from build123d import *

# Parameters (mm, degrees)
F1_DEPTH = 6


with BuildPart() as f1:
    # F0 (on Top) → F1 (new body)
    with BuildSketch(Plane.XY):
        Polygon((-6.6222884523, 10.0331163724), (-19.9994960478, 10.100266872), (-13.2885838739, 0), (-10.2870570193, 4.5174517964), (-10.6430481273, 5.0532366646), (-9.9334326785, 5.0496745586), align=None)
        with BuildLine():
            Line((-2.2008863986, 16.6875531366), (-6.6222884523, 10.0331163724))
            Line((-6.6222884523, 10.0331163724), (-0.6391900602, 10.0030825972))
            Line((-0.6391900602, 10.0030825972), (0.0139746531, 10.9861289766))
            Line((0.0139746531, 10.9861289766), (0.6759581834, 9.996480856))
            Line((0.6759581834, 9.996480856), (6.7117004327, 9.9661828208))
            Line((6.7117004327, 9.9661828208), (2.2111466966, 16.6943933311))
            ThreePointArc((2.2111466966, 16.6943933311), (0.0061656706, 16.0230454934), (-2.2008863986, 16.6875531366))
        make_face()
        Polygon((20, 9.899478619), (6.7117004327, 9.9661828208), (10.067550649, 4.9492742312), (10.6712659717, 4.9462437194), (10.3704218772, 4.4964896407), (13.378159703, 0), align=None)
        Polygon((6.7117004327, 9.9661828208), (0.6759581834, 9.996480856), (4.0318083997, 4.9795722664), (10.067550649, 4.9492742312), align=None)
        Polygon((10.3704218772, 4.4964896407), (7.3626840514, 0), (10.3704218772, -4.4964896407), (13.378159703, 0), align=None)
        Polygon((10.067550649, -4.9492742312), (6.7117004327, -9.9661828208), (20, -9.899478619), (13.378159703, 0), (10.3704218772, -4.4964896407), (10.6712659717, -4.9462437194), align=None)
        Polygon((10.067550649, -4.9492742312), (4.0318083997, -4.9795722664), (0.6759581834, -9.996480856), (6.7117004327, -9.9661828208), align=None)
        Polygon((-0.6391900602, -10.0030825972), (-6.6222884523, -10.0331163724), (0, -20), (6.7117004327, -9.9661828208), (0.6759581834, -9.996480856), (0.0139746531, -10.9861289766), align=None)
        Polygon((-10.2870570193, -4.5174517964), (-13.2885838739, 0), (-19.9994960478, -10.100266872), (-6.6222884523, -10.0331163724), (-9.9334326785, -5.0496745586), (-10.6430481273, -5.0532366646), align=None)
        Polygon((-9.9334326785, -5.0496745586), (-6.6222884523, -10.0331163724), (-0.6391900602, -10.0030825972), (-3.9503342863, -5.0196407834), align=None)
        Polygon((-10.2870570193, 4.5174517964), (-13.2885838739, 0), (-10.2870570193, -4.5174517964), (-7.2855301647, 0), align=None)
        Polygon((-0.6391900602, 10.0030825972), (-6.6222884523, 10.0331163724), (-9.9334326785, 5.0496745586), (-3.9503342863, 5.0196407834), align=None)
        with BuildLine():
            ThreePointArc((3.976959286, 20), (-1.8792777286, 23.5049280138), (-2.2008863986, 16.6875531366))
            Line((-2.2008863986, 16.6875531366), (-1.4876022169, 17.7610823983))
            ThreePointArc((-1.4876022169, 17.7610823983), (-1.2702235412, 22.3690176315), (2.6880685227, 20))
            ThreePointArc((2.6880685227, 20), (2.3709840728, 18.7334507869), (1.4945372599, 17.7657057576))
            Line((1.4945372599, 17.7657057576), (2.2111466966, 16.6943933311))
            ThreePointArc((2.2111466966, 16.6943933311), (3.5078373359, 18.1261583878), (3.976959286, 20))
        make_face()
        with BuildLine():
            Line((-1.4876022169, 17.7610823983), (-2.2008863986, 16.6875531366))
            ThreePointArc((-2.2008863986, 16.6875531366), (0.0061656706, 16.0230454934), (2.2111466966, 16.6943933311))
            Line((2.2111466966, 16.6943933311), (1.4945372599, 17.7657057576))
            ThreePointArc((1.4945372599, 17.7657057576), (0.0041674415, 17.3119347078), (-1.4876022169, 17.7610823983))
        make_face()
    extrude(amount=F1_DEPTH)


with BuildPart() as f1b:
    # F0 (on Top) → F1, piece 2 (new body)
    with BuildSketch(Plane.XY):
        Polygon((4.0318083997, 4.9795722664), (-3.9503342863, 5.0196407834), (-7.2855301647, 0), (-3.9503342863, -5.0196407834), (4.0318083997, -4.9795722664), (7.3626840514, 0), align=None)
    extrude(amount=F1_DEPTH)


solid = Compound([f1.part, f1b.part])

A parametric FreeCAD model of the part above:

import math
import FreeCAD as App
import Part
import Sketcher

V = App.Vector


def add_polygon(sketch, points):
    """Adds a closed chain of lines whose ends are joined by coincident constraints."""
    first, n = sketch.GeometryCount, len(points)
    for a, b in zip(points, points[1:] + points[:1]):
        sketch.addGeometry(Part.LineSegment(App.Vector(*a, 0), App.Vector(*b, 0)), False)
    for i in range(n):
        sketch.addConstraint(Sketcher.Constraint("Coincident", first + i, 2, first + (i + 1) % n, 1))

doc = App.newDocument("Part")
body = doc.addObject("PartDesign::Body", "Body")

# Sketch on XY plane
sketch1 = body.newObject("Sketcher::SketchObject", "Sketch")
sketch1.AttachmentSupport = (doc.getObject("XY_Plane"), [""])
sketch1.MapMode = "FlatFace"
sketch1.addGeometry(Part.LineSegment(V(-2.200886, 16.687553, 0), V(-6.622288, 10.033116, 0)), False)  # 0
sketch1.addGeometry(Part.LineSegment(V(-6.622288, 10.033116, 0), V(-19.999496, 10.100267, 0)), False)  # 1
sketch1.addGeometry(Part.LineSegment(V(-19.999496, 10.100267, 0), V(-13.288584, 0, 0)), False)  # 2
sketch1.addGeometry(Part.LineSegment(V(-13.288584, 0, 0), V(-19.999496, -10.100267, 0)), False)  # 3
sketch1.addGeometry(Part.LineSegment(V(-19.999496, -10.100267, 0), V(-6.622288, -10.033116, 0)), False)  # 4
sketch1.addGeometry(Part.LineSegment(V(-6.622288, -10.033116, 0), V(0, -20, 0)), False)  # 5
sketch1.addGeometry(Part.LineSegment(V(0, -20, 0), V(6.7117, -9.966183, 0)), False)  # 6
sketch1.addGeometry(Part.LineSegment(V(6.7117, -9.966183, 0), V(20, -9.899479, 0)), False)  # 7
sketch1.addGeometry(Part.LineSegment(V(20, -9.899479, 0), V(13.37816, 0, 0)), False)  # 8
sketch1.addGeometry(Part.LineSegment(V(13.37816, 0, 0), V(20, 9.899479, 0)), False)  # 9
sketch1.addGeometry(Part.LineSegment(V(20, 9.899479, 0), V(6.7117, 9.966183, 0)), False)  # 10
sketch1.addGeometry(Part.LineSegment(V(6.7117, 9.966183, 0), V(2.211147, 16.694393, 0)), False)  # 11
sketch1.addGeometry(Part.ArcOfCircle(Part.Circle(V(0, 20, 0), V(0, 0, 1), 3.976959), math.radians(-56.22112), math.radians(0)), False)  # 12
sketch1.addGeometry(Part.ArcOfCircle(Part.Circle(V(0, 20, 0), V(0, 0, 1), 3.976959), math.radians(0), math.radians(236.398776)), False)  # 13
add_polygon(sketch1, [(-10.643048, 5.053237), (-9.933433, 5.049675), (-3.950334, 5.019641), (-0.63919, 10.003083), (0.013975, 10.986129), (0.675958, 9.996481), (4.031808, 4.979572), (10.067551, 4.949274), (10.671266, 4.946244), (10.370422, 4.49649), (7.362684, 0), (10.370422, -4.49649), (10.671266, -4.946244), (10.067551, -4.949274), (4.031808, -4.979572), (0.675958, -9.996481), (0.013975, -10.986129), (-0.63919, -10.003083), (-3.950334, -5.019641), (-9.933433, -5.049675), (-10.643048, -5.053237), (-10.287057, -4.517452), (-7.28553, 0), (-10.287057, 4.517452)])  # lines 14-37
sketch1.addGeometry(Part.ArcOfCircle(Part.Circle(V(0, 20, 0), V(0, 0, 1), 2.688069), math.radians(-123.601224), math.radians(-56.22112)), False)  # 38
sketch1.addGeometry(Part.ArcOfCircle(Part.Circle(V(0, 20, 0), V(0, 0, 1), 2.688069), math.radians(0), math.radians(236.398776)), False)  # 39
sketch1.addGeometry(Part.ArcOfCircle(Part.Circle(V(0, 20, 0), V(0, 0, 1), 2.688069), math.radians(-56.22112), math.radians(0)), False)  # 40
sketch1.addConstraint([
    Sketcher.Constraint("Coincident", 0, 2, 1, 1),
    Sketcher.Constraint("Coincident", 1, 2, 2, 1),
    Sketcher.Constraint("Coincident", 2, 2, 3, 1),
    Sketcher.Constraint("Coincident", 3, 2, 4, 1),
    Sketcher.Constraint("Coincident", 4, 2, 5, 1),
    Sketcher.Constraint("Coincident", 5, 2, 6, 1),
    Sketcher.Constraint("Coincident", 6, 2, 7, 1),
    Sketcher.Constraint("Coincident", 7, 2, 8, 1),
    Sketcher.Constraint("Coincident", 8, 2, 9, 1),
    Sketcher.Constraint("Coincident", 9, 2, 10, 1),
    Sketcher.Constraint("Coincident", 10, 2, 11, 1),
    Sketcher.Constraint("Coincident", 11, 2, 12, 1),
    Sketcher.Constraint("Coincident", 12, 2, 13, 1),
    Sketcher.Constraint("Coincident", 13, 2, 0, 1),
    Sketcher.Constraint("Coincident", 38, 1, 39, 2),
    Sketcher.Constraint("Coincident", 39, 1, 40, 2),
    Sketcher.Constraint("Coincident", 40, 1, 38, 2),
    Sketcher.Constraint("Coincident", 13, 3, 12, 3),
    Sketcher.Constraint("Coincident", 38, 3, 12, 3),
    Sketcher.Constraint("Coincident", 39, 3, 12, 3),
    Sketcher.Constraint("PointOnObject", 12, 3, -2),
    Sketcher.Constraint("PointOnObject", 40, 3, -2),
    Sketcher.Constraint("PointOnObject", 2, 2, -1),
    Sketcher.Constraint("PointOnObject", 5, 2, -2),
    Sketcher.Constraint("PointOnObject", 8, 2, -1),
    Sketcher.Constraint("PointOnObject", 23, 2, -1),
    Sketcher.Constraint("PointOnObject", 35, 2, -1),
    Sketcher.Constraint("DistanceY", -1, 1, 12, 3, 20.0),
    Sketcher.Constraint("DistanceY", 5, 2, -1, 1, 20.0),
    Sketcher.Constraint("DistanceX", -1, 1, 7, 2, 20.0),
    Sketcher.Constraint("DistanceX", -1, 1, 9, 2, 20.0),
    Sketcher.Constraint("DistanceY", -1, 1, 12, 2, 20.0),
    Sketcher.Constraint("DistanceY", -1, 1, 39, 1, 20.0),
    Sketcher.Constraint("Radius", 12, 3.976959),
    Sketcher.Constraint("Radius", 38, 2.688069),
    Sketcher.Constraint("DistanceX", 16, 2, 19, 2, 4.670998),
    Sketcher.Constraint("DistanceX", 30, 2, 27, 2, 4.670998),
    Sketcher.Constraint("Distance", 35, 5.423701),
    Sketcher.Constraint("Distance", 36, 5.423701),
    Sketcher.Constraint("DistanceX", -1, 1, 6, 2, 6.7117),
    Sketcher.Constraint("DistanceX", -1, 1, 10, 2, 6.7117),
    Sketcher.Constraint("DistanceY", 6, 2, 0, 2, 19.999299),
    Sketcher.Constraint("DistanceX", 14, 2, 15, 2, 5.983098),
    Sketcher.Constraint("DistanceX", 0, 2, 16, 2, 5.983098),
    Sketcher.Constraint("DistanceY", 10, 2, 16, 2, 0.0369),
    Sketcher.Constraint("DistanceY", 18, 2, 16, 2, 0.006602),
    Sketcher.Constraint("DistanceY", 20, 2, 19, 2, 0.030298),
    Sketcher.Constraint("DistanceY", 27, 2, 26, 2, 0.030298),
    Sketcher.Constraint("DistanceY", 28, 2, 6, 2, 0.030298),
    Sketcher.Constraint("DistanceY", 30, 2, 28, 2, 0.006602),
    Sketcher.Constraint("DistanceX", 4, 2, 30, 2, 5.983098),
    Sketcher.Constraint("DistanceX", 32, 2, 31, 2, 5.983098),
    Sketcher.Constraint("Distance", 0, 7.989388),
    Sketcher.Constraint("Distance", 2, 12.126489),
    Sketcher.Constraint("Distance", 3, 12.126489),
    Sketcher.Constraint("Distance", 18, 1.190641),
    Sketcher.Constraint("Distance", 19, 6.035818),
    Sketcher.Constraint("Distance", 20, 6.035818),
    Sketcher.Constraint("Distance", 27, 6.035818),
    Sketcher.Constraint("Distance", 28, 6.035818),
    Sketcher.Constraint("Distance", 29, 1.190641),
    Sketcher.Constraint("Distance", 34, 0.643269),
    Sketcher.Constraint("Distance", 37, 0.643269),
    Sketcher.Constraint("DistanceX", 0, 2, -1, 1, 6.622288),
    Sketcher.Constraint("DistanceX", 4, 2, -1, 1, 6.622288),
    Sketcher.Constraint("DistanceY", 7, 2, -1, 1, 9.899479),
    Sketcher.Constraint("DistanceX", -1, 1, 8, 2, 13.37816),
    Sketcher.Constraint("DistanceY", -1, 1, 9, 2, 9.899479),
    Sketcher.Constraint("DistanceY", -1, 1, 15, 2, 5.019641),
    Sketcher.Constraint("DistanceY", -1, 1, 17, 2, 10.986129),
    Sketcher.Constraint("DistanceX", -1, 1, 18, 2, 0.675958),
    Sketcher.Constraint("DistanceY", -1, 1, 18, 2, 9.996481),
    Sketcher.Constraint("DistanceX", -1, 1, 22, 2, 10.370422),
    Sketcher.Constraint("DistanceY", -1, 1, 22, 2, 4.49649),
    Sketcher.Constraint("DistanceX", -1, 1, 24, 2, 10.370422),
    Sketcher.Constraint("DistanceY", 24, 2, -1, 1, 4.49649),
    Sketcher.Constraint("DistanceX", -1, 1, 28, 2, 0.675958),
    Sketcher.Constraint("DistanceY", 29, 2, -1, 1, 10.986129),
    Sketcher.Constraint("DistanceY", 31, 2, -1, 1, 5.019641),
    Sketcher.Constraint("DistanceX", 33, 2, -1, 1, 10.643048),
    Sketcher.Constraint("DistanceY", 34, 2, -1, 1, 4.517452),
    Sketcher.Constraint("DistanceX", 35, 2, -1, 1, 7.28553),
    Sketcher.Constraint("DistanceY", -1, 1, 36, 2, 4.517452),
    Sketcher.Constraint("DistanceX", 37, 2, -1, 1, 10.643048),
    Sketcher.Constraint("DistanceY", 0, 2, 1, 2, 0.067151),
    Sketcher.Constraint("DistanceY", 3, 2, 4, 2, 0.067151),
    Sketcher.Constraint("DistanceY", 14, 2, 0, 2, 4.983442),
    Sketcher.Constraint("DistanceX", 2, 2, 14, 2, 3.355151),
    Sketcher.Constraint("DistanceY", 14, 2, 13, 2, 11.637879),
    Sketcher.Constraint("DistanceY", 4, 2, 14, 2, 15.082791),
    Sketcher.Constraint("DistanceY", 16, 2, 11, 2, 6.691311),
    Sketcher.Constraint("DistanceY", 21, 2, 20, 2, 0.003031),
    Sketcher.Constraint("DistanceX", 23, 2, 21, 2, 3.308582),
    Sketcher.Constraint("DistanceX", 23, 2, 25, 2, 3.308582),
    Sketcher.Constraint("DistanceY", 6, 2, 25, 2, 5.019939),
    Sketcher.Constraint("DistanceX", 31, 2, 29, 2, 3.964309),
    Sketcher.Constraint("DistanceY", 4, 2, 32, 2, 4.983442),
    Sketcher.Constraint("DistanceX", 2, 2, 32, 2, 3.355151),
    Sketcher.Constraint("DistanceY", 13, 2, 38, 1, 1.073529),
    Sketcher.Constraint("DistanceX", 40, 1, 11, 2, 0.716609),
    Sketcher.Constraint("Distance", 21, 0.603723),
])
pad1 = body.newObject("PartDesign::Pad", "Pad")
pad1.Profile = sketch1
pad1.Length = 6
body2 = doc.addObject("PartDesign::Body", "Body001")

# Sketch on XY plane
sketch2 = body2.newObject("Sketcher::SketchObject", "Sketch001")
sketch2.AttachmentSupport = (doc.getObject("XY_Plane001"), [""])
sketch2.MapMode = "FlatFace"
add_polygon(sketch2, [(4, 5), (-4, 5), (-7, 0), (-4, -5), (4, -5), (7, 0)])  # lines 0-5
sketch2.addConstraint([
    Sketcher.Constraint("Symmetric", 0, 2, 2, 2, -1),
    Sketcher.Constraint("Symmetric", 3, 2, 5, 2, -1),
    Sketcher.Constraint("PointOnObject", 1, 2, -1),
    Sketcher.Constraint("PointOnObject", 4, 2, -1),
    Sketcher.Constraint("Distance", 4, 5.990899),
    Sketcher.Constraint("DistanceY", -1, 1, 0, 2, 5.019641),
    Sketcher.Constraint("DistanceX", 1, 2, -1, 1, 7.28553),
    Sketcher.Constraint("DistanceX", -1, 1, 3, 2, 4.031808),
    Sketcher.Constraint("DistanceY", 2, 2, 3, 2, 0.040069),
    Sketcher.Constraint("DistanceX", 0, 2, 4, 2, 11.313018),
])
pad2 = body2.newObject("PartDesign::Pad", "Pad001")
pad2.Profile = sketch2
pad2.Length = 6

doc.recompute()
